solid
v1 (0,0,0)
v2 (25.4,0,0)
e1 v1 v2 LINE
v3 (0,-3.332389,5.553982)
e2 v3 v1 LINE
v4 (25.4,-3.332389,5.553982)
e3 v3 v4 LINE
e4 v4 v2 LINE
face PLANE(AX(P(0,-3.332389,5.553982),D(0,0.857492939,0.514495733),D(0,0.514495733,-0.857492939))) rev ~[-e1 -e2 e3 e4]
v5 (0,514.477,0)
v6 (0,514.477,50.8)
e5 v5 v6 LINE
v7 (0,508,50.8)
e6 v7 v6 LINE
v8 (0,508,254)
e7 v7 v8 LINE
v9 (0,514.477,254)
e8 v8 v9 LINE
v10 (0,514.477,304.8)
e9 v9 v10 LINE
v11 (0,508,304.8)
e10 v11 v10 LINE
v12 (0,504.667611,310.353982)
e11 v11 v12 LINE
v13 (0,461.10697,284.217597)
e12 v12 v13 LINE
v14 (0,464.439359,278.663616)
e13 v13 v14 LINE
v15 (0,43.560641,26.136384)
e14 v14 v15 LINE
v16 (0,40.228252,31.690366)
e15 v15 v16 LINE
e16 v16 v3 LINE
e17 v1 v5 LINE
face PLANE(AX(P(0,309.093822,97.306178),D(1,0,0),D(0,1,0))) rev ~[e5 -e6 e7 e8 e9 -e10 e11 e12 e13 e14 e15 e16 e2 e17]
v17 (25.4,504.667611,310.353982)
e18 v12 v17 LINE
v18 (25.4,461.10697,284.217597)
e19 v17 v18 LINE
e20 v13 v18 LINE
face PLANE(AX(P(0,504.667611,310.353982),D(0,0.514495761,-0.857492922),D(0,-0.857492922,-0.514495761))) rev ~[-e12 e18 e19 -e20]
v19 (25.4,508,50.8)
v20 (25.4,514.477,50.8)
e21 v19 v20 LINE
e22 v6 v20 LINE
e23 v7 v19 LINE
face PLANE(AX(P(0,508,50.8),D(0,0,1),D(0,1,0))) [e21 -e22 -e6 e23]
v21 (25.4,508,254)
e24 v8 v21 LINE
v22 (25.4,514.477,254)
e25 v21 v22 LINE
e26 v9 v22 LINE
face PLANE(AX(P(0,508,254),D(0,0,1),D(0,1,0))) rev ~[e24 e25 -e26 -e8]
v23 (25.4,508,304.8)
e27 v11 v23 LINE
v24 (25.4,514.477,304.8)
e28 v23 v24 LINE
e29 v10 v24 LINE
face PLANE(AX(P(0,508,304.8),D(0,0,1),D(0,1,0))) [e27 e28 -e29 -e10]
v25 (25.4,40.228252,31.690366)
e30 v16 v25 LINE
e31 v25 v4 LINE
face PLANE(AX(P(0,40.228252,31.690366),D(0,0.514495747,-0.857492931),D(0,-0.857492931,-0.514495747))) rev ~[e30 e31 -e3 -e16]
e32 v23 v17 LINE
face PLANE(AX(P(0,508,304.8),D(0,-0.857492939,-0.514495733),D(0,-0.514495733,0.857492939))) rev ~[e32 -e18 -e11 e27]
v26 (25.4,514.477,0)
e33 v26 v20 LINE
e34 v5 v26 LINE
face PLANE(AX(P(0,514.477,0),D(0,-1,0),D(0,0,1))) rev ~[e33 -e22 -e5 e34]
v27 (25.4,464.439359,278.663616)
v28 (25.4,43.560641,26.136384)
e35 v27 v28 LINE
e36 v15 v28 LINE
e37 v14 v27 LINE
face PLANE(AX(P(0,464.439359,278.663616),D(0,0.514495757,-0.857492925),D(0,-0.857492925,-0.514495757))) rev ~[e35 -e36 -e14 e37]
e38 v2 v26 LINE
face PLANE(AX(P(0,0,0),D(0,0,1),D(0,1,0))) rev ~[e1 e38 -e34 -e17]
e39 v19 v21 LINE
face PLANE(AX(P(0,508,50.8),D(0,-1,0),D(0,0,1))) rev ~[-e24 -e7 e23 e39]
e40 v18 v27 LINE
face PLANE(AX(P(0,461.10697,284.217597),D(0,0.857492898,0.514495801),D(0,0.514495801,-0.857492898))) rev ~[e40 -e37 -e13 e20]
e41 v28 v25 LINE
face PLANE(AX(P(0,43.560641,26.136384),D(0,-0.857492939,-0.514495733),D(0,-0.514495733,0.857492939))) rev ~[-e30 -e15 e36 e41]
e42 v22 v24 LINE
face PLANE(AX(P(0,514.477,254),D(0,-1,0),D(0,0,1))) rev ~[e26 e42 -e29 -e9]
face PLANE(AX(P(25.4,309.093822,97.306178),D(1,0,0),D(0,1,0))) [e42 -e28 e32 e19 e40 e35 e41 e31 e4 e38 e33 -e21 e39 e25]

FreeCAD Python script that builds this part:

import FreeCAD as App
import Part
import Sketcher
Q = App.Units.Quantity

doc = App.newDocument("Part")
params = doc.addObject("Spreadsheet::Sheet", "Params")
for row, (alias, value) in enumerate([
    ("sketch1_height", "2 in"),
    ("sketch1_height2", "8 in"),
    ("sketch1_length", "2 in"),
    ("sketch1_width", "20.255 in"),
    ("sketch1_length2", "0.255 in"),
    ("pad1_length", "1 in"),
], start=1):
    params.set(f"A{row}", alias)
    params.set(f"B{row}", "=" + value)
    params.setAlias(f"B{row}", alias)

body = doc.addObject("PartDesign::Body", "Body")

sketch1 = body.newObject("Sketcher::SketchObject", "Sketch")
sketch1.AttachmentSupport = (doc.getObject("YZ_Plane"), [""])
sketch1.MapMode = "FlatFace"
sketch1.addGeometry(Part.LineSegment(App.Vector(0, 0, 0), App.Vector(514, 0, 0)), False)
sketch1.addGeometry(Part.LineSegment(App.Vector(514, 0, 0), App.Vector(514, 51, 0)), False)
sketch1.addGeometry(Part.LineSegment(App.Vector(514, 51, 0), App.Vector(508, 51, 0)), False)
sketch1.addGeometry(Part.LineSegment(App.Vector(508, 51, 0), App.Vector(508, 254, 0)), False)
sketch1.addGeometry(Part.LineSegment(App.Vector(508, 254, 0), App.Vector(514, 254, 0)), False)
sketch1.addGeometry(Part.LineSegment(App.Vector(514, 254, 0), App.Vector(514, 305, 0)), False)
sketch1.addGeometry(Part.LineSegment(App.Vector(514, 305, 0), App.Vector(508, 305, 0)), False)
sketch1.addGeometry(Part.LineSegment(App.Vector(508, 305, 0), App.Vector(505, 310, 0)), False)
sketch1.addGeometry(Part.LineSegment(App.Vector(505, 310, 0), App.Vector(461, 284, 0)), False)
sketch1.addGeometry(Part.LineSegment(App.Vector(461, 284, 0), App.Vector(464, 279, 0)), False)
sketch1.addGeometry(Part.LineSegment(App.Vector(464, 279, 0), App.Vector(44, 26, 0)), False)
sketch1.addGeometry(Part.LineSegment(App.Vector(44, 26, 0), App.Vector(40, 32, 0)), False)
sketch1.addGeometry(Part.LineSegment(App.Vector(40, 32, 0), App.Vector(-3, 6, 0)), False)
sketch1.addGeometry(Part.LineSegment(App.Vector(-3, 6, 0), App.Vector(0, 0, 0)), False)
sketch1.addConstraint(Sketcher.Constraint("Coincident", 0, 2, 1, 1))
sketch1.addConstraint(Sketcher.Constraint("Coincident", 1, 2, 2, 1))
sketch1.addConstraint(Sketcher.Constraint("Coincident", 2, 2, 3, 1))
sketch1.addConstraint(Sketcher.Constraint("Coincident", 3, 2, 4, 1))
sketch1.addConstraint(Sketcher.Constraint("Coincident", 4, 2, 5, 1))
sketch1.addConstraint(Sketcher.Constraint("Coincident", 5, 2, 6, 1))
sketch1.addConstraint(Sketcher.Constraint("Coincident", 6, 2, 7, 1))
sketch1.addConstraint(Sketcher.Constraint("Coincident", 7, 2, 8, 1))
sketch1.addConstraint(Sketcher.Constraint("Coincident", 8, 2, 9, 1))
sketch1.addConstraint(Sketcher.Constraint("Coincident", 9, 2, 10, 1))
sketch1.addConstraint(Sketcher.Constraint("Coincident", 10, 2, 11, 1))
sketch1.addConstraint(Sketcher.Constraint("Coincident", 11, 2, 12, 1))
sketch1.addConstraint(Sketcher.Constraint("Coincident", 12, 2, 13, 1))
sketch1.addConstraint(Sketcher.Constraint("Coincident", 13, 2, 0, 1))
sketch1.addConstraint(Sketcher.Constraint("Horizontal", 0))
sketch1.addConstraint(Sketcher.Constraint("Vertical", 1))
sketch1.addConstraint(Sketcher.Constraint("Horizontal", 2))
sketch1.addConstraint(Sketcher.Constraint("Vertical", 3))
sketch1.addConstraint(Sketcher.Constraint("Horizontal", 4))
sketch1.addConstraint(Sketcher.Constraint("Vertical", 5))
sketch1.addConstraint(Sketcher.Constraint("Horizontal", 6))
sketch1.addConstraint(Sketcher.Constraint("Coincident", 13, 2, -1, 1))
sketch1.addConstraint(Sketcher.Constraint("Perpendicular", 7, 8))
sketch1.addConstraint(Sketcher.Constraint("Perpendicular", 8, 9))
sketch1.addConstraint(Sketcher.Constraint("Perpendicular", 9, 10))
sketch1.addConstraint(Sketcher.Constraint("Perpendicular", 10, 11))
sketch1.addConstraint(Sketcher.Constraint("Perpendicular", 11, 12))
sketch1.addConstraint(Sketcher.Constraint("Perpendicular", 12, 13))
sketch1.addConstraint(Sketcher.Constraint("Vertical", 1, 2, 4, 2))
sketch1.addConstraint(Sketcher.Constraint("Vertical", 3, 2, 6, 2))
sketch1.addConstraint(Sketcher.Constraint("Equal", 1, 5))
sketch1.addConstraint(Sketcher.Constraint("Equal", 7, 9))
sketch1.addConstraint(Sketcher.Constraint("Equal", 9, 11))
sketch1.addConstraint(Sketcher.Constraint("Equal", 8, 12))
sketch1.addConstraint(Sketcher.Constraint("Equal", 11, 13))
sketch1.addConstraint(Sketcher.Constraint("DistanceY", 1, 1, 1, 2, Q("2 in")))
sketch1.addConstraint(Sketcher.Constraint("DistanceY", 3, 1, 3, 2, Q("8 in")))
sketch1.addConstraint(Sketcher.Constraint("Distance", 8, Q("2 in")))
sketch1.addConstraint(Sketcher.Constraint("DistanceX", -1, 1, 2, 2, Q("20 in")))
sketch1.addConstraint(Sketcher.Constraint("DistanceX", 0, 1, 0, 2, Q("20.255 in")))
sketch1.addConstraint(Sketcher.Constraint("Distance", 7, Q("0.255 in")))
sketch1.setExpression("Constraints[35]", "Params.sketch1_height")
sketch1.setExpression("Constraints[36]", "Params.sketch1_height2")
sketch1.setExpression("Constraints[37]", "Params.sketch1_length")
sketch1.setExpression("Constraints[39]", "Params.sketch1_width")
sketch1.setExpression("Constraints[40]", "Params.sketch1_length2")
pad1 = body.newObject("PartDesign::Pad", "Pad")
pad1.Profile = sketch1
pad1.setExpression("Length", "Params.pad1_length")

doc.recompute()
